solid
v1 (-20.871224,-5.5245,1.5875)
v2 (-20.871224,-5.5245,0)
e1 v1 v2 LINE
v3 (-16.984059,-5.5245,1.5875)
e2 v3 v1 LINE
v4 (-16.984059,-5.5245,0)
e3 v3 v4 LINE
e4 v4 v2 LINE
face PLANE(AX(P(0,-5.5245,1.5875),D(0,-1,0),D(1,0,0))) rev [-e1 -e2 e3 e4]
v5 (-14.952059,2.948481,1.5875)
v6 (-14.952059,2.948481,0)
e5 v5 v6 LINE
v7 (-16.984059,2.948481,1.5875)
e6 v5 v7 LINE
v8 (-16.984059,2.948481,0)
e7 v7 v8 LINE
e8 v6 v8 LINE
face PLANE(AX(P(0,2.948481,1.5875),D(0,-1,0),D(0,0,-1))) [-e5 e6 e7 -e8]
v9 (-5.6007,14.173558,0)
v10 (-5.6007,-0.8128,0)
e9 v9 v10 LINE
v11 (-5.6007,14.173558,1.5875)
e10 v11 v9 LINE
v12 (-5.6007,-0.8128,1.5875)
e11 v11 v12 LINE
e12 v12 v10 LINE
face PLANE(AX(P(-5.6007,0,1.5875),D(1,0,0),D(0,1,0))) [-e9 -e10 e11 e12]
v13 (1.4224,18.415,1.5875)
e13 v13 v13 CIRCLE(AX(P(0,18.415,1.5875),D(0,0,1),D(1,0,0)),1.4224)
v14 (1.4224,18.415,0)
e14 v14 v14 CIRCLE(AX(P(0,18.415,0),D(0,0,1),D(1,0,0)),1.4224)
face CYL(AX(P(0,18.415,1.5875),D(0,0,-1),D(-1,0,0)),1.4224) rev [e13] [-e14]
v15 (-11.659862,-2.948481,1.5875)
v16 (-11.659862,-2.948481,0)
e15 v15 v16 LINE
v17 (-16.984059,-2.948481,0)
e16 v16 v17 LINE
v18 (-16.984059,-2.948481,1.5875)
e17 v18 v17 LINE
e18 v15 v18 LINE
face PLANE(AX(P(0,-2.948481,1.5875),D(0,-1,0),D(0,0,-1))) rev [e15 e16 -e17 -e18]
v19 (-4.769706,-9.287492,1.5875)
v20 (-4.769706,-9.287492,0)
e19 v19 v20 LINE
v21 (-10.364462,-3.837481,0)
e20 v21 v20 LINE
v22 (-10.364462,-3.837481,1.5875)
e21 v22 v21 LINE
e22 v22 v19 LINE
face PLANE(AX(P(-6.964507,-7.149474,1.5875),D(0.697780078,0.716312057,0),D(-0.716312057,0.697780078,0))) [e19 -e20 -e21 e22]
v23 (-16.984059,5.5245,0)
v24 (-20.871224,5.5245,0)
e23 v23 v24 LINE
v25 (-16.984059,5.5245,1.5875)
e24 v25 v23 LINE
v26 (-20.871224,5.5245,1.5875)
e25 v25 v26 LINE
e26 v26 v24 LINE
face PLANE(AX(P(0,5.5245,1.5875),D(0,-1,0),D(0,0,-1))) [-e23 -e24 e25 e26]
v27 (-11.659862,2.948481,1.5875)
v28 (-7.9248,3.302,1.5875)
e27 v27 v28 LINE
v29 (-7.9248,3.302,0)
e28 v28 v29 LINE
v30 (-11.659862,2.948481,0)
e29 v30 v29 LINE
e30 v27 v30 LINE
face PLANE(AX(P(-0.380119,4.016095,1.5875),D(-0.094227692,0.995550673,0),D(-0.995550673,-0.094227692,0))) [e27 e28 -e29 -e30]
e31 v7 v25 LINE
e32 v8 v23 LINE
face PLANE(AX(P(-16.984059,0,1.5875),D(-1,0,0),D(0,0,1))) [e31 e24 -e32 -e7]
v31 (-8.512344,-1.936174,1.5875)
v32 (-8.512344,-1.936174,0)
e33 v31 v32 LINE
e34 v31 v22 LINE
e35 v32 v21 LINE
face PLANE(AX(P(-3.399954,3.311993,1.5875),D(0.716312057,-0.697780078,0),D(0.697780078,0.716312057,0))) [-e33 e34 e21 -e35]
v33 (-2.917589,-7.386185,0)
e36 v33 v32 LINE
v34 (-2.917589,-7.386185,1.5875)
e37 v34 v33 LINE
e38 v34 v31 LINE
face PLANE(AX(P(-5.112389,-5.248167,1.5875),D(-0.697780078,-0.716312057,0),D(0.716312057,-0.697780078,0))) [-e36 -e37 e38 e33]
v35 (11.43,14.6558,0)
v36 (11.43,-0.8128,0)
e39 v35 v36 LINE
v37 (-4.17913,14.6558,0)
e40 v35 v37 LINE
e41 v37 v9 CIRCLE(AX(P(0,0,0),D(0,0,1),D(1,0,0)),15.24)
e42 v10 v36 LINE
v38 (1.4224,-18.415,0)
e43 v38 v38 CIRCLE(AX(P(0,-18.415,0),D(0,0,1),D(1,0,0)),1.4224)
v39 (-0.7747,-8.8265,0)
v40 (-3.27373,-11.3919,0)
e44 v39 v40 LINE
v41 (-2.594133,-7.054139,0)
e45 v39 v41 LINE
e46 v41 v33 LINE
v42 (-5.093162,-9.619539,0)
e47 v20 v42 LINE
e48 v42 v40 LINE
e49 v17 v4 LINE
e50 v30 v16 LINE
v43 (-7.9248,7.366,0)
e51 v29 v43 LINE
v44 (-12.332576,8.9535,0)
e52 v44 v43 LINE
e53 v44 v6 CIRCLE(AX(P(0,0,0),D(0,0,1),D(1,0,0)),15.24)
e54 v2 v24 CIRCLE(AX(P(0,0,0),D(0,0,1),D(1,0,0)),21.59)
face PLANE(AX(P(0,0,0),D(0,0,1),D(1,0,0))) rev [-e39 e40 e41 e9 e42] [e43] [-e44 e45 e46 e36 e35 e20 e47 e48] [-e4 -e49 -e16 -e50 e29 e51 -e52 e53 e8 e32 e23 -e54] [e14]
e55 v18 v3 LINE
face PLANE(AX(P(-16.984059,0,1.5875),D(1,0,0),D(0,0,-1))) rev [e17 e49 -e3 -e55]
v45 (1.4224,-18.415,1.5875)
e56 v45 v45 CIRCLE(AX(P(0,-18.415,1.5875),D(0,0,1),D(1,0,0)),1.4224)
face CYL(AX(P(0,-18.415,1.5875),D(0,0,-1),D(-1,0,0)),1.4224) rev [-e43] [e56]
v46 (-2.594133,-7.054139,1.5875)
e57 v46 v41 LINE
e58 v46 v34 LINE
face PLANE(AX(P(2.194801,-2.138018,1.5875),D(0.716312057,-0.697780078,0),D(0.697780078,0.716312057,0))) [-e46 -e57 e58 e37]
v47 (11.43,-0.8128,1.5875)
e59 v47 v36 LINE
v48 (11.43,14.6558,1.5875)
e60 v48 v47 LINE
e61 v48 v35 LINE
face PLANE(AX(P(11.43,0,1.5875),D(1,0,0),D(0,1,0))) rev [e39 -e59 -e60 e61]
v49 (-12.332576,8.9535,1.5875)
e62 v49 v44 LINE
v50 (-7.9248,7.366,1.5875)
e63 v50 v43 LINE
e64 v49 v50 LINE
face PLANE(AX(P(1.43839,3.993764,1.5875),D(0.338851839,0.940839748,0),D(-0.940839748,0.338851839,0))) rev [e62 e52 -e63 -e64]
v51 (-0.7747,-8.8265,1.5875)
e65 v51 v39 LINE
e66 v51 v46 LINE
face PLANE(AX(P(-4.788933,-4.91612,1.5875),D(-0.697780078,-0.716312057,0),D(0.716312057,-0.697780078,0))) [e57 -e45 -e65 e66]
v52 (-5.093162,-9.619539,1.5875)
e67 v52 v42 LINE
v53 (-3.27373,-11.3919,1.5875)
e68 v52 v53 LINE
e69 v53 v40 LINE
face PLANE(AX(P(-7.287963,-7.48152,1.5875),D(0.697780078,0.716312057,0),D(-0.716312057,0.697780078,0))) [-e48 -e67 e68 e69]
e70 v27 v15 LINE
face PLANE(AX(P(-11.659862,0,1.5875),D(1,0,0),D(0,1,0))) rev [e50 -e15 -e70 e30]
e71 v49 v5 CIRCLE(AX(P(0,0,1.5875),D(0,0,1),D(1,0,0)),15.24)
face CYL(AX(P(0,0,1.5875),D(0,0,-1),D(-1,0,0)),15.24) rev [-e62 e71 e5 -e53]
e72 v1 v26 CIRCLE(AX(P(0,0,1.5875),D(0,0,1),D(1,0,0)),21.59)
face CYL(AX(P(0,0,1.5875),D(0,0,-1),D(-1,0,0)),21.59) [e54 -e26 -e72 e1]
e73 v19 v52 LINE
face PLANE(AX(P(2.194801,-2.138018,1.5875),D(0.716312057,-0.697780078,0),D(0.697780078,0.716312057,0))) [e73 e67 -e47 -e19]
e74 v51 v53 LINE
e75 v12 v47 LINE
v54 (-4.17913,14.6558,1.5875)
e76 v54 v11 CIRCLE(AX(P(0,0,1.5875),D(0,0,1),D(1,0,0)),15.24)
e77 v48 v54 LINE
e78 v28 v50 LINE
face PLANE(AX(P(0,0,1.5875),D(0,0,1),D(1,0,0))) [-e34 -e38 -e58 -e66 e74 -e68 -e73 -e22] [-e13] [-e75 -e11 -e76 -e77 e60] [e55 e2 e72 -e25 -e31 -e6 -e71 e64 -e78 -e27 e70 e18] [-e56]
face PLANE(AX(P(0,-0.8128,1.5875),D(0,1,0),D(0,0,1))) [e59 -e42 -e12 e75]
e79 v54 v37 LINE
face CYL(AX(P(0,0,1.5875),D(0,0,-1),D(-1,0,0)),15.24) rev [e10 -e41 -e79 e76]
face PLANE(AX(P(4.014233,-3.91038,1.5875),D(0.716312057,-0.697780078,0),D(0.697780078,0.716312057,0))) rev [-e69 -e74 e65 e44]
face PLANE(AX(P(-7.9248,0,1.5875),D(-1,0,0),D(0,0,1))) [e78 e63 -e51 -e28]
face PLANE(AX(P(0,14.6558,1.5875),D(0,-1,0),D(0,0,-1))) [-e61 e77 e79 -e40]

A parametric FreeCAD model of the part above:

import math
import FreeCAD as App
import Part
import Sketcher

V = App.Vector
Q = App.Units.Quantity

doc = App.newDocument("Part")
body = doc.addObject("PartDesign::Body", "Body")

sketch1 = body.newObject("Sketcher::SketchObject", "Sketch")
sketch1.AttachmentSupport = (doc.getObject("XY_Plane"), [""])
sketch1.MapMode = "FlatFace"
sketch1.addGeometry(Part.LineSegment(V(-7.92, 3.3, 0), V(-11.66, 2.95, 0)), False)
sketch1.addGeometry(Part.LineSegment(V(-11.66, 2.95, 0), V(-11.66, -2.95, 0)), False)
sketch1.addGeometry(Part.LineSegment(V(-11.66, -2.95, 0), V(-16.98, -2.95, 0)), False)
sketch1.addGeometry(Part.LineSegment(V(-16.98, -2.95, 0), V(-16.98, -5.52, 0)), False)
sketch1.addGeometry(Part.LineSegment(V(-16.98, -5.52, 0), V(-20.87, -5.52, 0)), False)
sketch1.addGeometry(Part.ArcOfCircle(Part.Circle(V(0, 0, 0), V(0, 0, 1), 21.59), math.radians(-165), math.radians(165)), False)
sketch1.addGeometry(Part.LineSegment(V(-20.87, 5.52, 0), V(-16.98, 5.52, 0)), False)
sketch1.addGeometry(Part.LineSegment(V(-16.98, 5.52, 0), V(-16.98, 2.95, 0)), False)
sketch1.addGeometry(Part.LineSegment(V(-16.98, 2.95, 0), V(-14.95, 2.95, 0)), False)
sketch1.addGeometry(Part.ArcOfCircle(Part.Circle(V(0, 0, 0), V(0, 0, 1), 15.24), math.radians(144), math.radians(169)), False)
sketch1.addGeometry(Part.LineSegment(V(-12.33, 8.95, 0), V(-7.92, 7.37, 0)), False)
sketch1.addGeometry(Part.LineSegment(V(-7.92, 7.37, 0), V(-7.92, 3.3, 0)), False)
sketch1.addGeometry(Part.Circle(V(0, -18.41, 0), V(0, 0, 1), 1.42), False)
sketch1.addGeometry(Part.LineSegment(V(-4.77, -9.29, 0), V(-10.36, -3.84, 0)), False)
sketch1.addGeometry(Part.LineSegment(V(-10.36, -3.84, 0), V(-8.51, -1.94, 0)), False)
sketch1.addGeometry(Part.LineSegment(V(-8.51, -1.94, 0), V(-2.92, -7.39, 0)), False)
sketch1.addGeometry(Part.LineSegment(V(-2.92, -7.39, 0), V(-2.59, -7.05, 0)), False)
sketch1.addGeometry(Part.LineSegment(V(-2.59, -7.05, 0), V(-0.77, -8.83, 0)), False)
sketch1.addGeometry(Part.LineSegment(V(-0.77, -8.83, 0), V(-3.27, -11.39, 0)), False)
sketch1.addGeometry(Part.LineSegment(V(-3.27, -11.39, 0), V(-5.09, -9.62, 0)), False)
sketch1.addGeometry(Part.LineSegment(V(-5.09, -9.62, 0), V(-4.77, -9.29, 0)), False)
sketch1.addGeometry(Part.Circle(V(0, 18.41, 0), V(0, 0, 1), 1.42), False)
sketch1.addGeometry(Part.LineSegment(V(-4.18, 14.66, 0), V(11.43, 14.66, 0)), False)
sketch1.addGeometry(Part.LineSegment(V(11.43, 14.66, 0), V(11.43, -0.81, 0)), False)
sketch1.addGeometry(Part.LineSegment(V(11.43, -0.81, 0), V(-5.6, -0.81, 0)), False)
sketch1.addGeometry(Part.LineSegment(V(-5.6, -0.81, 0), V(-5.6, 14.17, 0)), False)
sketch1.addGeometry(Part.ArcOfCircle(Part.Circle(V(0, 0, 0), V(0, 0, 1), 15.24), math.radians(105.92), math.radians(111.56)), False)
sketch1.addConstraint(Sketcher.Constraint("Coincident", 0, 2, 1, 1))
sketch1.addConstraint(Sketcher.Constraint("Coincident", 1, 2, 2, 1))
sketch1.addConstraint(Sketcher.Constraint("Coincident", 2, 2, 3, 1))
sketch1.addConstraint(Sketcher.Constraint("Coincident", 3, 2, 4, 1))
sketch1.addConstraint(Sketcher.Constraint("Coincident", 4, 2, 5, 1))
sketch1.addConstraint(Sketcher.Constraint("Coincident", 5, 2, 6, 1))
sketch1.addConstraint(Sketcher.Constraint("Coincident", 6, 2, 7, 1))
sketch1.addConstraint(Sketcher.Constraint("Coincident", 7, 2, 8, 1))
sketch1.addConstraint(Sketcher.Constraint("Coincident", 8, 2, 9, 2))
sketch1.addConstraint(Sketcher.Constraint("Coincident", 9, 1, 10, 1))
sketch1.addConstraint(Sketcher.Constraint("Coincident", 10, 2, 11, 1))
sketch1.addConstraint(Sketcher.Constraint("Coincident", 11, 2, 0, 1))
sketch1.addConstraint(Sketcher.Constraint("Coincident", 13, 2, 14, 1))
sketch1.addConstraint(Sketcher.Constraint("Coincident", 14, 2, 15, 1))
sketch1.addConstraint(Sketcher.Constraint("Coincident", 15, 2, 16, 1))
sketch1.addConstraint(Sketcher.Constraint("Coincident", 16, 2, 17, 1))
sketch1.addConstraint(Sketcher.Constraint("Coincident", 17, 2, 18, 1))
sketch1.addConstraint(Sketcher.Constraint("Coincident", 18, 2, 19, 1))
sketch1.addConstraint(Sketcher.Constraint("Coincident", 19, 2, 20, 1))
sketch1.addConstraint(Sketcher.Constraint("Coincident", 20, 2, 13, 1))
sketch1.addConstraint(Sketcher.Constraint("Coincident", 22, 2, 23, 1))
sketch1.addConstraint(Sketcher.Constraint("Coincident", 23, 2, 24, 1))
sketch1.addConstraint(Sketcher.Constraint("Coincident", 24, 2, 25, 1))
sketch1.addConstraint(Sketcher.Constraint("Coincident", 25, 2, 26, 2))
sketch1.addConstraint(Sketcher.Constraint("Coincident", 26, 1, 22, 1))
sketch1.addConstraint(Sketcher.Constraint("Vertical", 1))
sketch1.addConstraint(Sketcher.Constraint("Horizontal", 2))
sketch1.addConstraint(Sketcher.Constraint("Vertical", 3))
sketch1.addConstraint(Sketcher.Constraint("Horizontal", 4))
sketch1.addConstraint(Sketcher.Constraint("Horizontal", 6))
sketch1.addConstraint(Sketcher.Constraint("Vertical", 7))
sketch1.addConstraint(Sketcher.Constraint("Horizontal", 8))
sketch1.addConstraint(Sketcher.Constraint("Vertical", 11))
sketch1.addConstraint(Sketcher.Constraint("Horizontal", 22))
sketch1.addConstraint(Sketcher.Constraint("Vertical", 23))
sketch1.addConstraint(Sketcher.Constraint("Horizontal", 24))
sketch1.addConstraint(Sketcher.Constraint("Vertical", 25))
sketch1.addConstraint(Sketcher.Constraint("Coincident", 5, 3, -1, 1))
sketch1.addConstraint(Sketcher.Constraint("Coincident", 9, 3, -1, 1))
sketch1.addConstraint(Sketcher.Constraint("Coincident", 26, 3, -1, 1))
sketch1.addConstraint(Sketcher.Constraint("Equal", 12, 21))
sketch1.addConstraint(Sketcher.Constraint("Equal", 9, 26))
sketch1.addConstraint(Sketcher.Constraint("Symmetric", 12, 3, 21, 3, -1, 1))
sketch1.addConstraint(Sketcher.Constraint("Symmetric", 3, 2, 6, 2, -1))
sketch1.addConstraint(Sketcher.Constraint("PointOnObject", 12, 3, -2))
sketch1.addConstraint(Sketcher.Constraint("Perpendicular", 13, 14))
sketch1.addConstraint(Sketcher.Constraint("Perpendicular", 14, 15))
sketch1.addConstraint(Sketcher.Constraint("Perpendicular", 15, 16))
sketch1.addConstraint(Sketcher.Constraint("Perpendicular", 16, 17))
sketch1.addConstraint(Sketcher.Constraint("Perpendicular", 17, 18))
sketch1.addConstraint(Sketcher.Constraint("Perpendicular", 18, 19))
sketch1.addConstraint(Sketcher.Constraint("Perpendicular", 19, 20))
sketch1.addConstraint(Sketcher.Constraint("Horizontal", 0, 2, 7, 2))
sketch1.addConstraint(Sketcher.Constraint("Equal", 3, 7))
sketch1.addConstraint(Sketcher.Constraint("Equal", 13, 15))
sketch1.addConstraint(Sketcher.Constraint("Equal", 16, 20))
sketch1.addConstraint(Sketcher.Constraint("Radius", 9, Q("0.6 in")))
sketch1.addConstraint(Sketcher.Constraint("Radius", 5, Q("0.85 in")))
sketch1.addConstraint(Sketcher.Constraint("Diameter", 12, Q("0.112 in")))
sketch1.addConstraint(Sketcher.Constraint("Distance", 17, Q("0.1 in")))
sketch1.addConstraint(Sketcher.Constraint("DistanceX", 8, 1, 8, 2, Q("0.08 in")))
sketch1.addConstraint(Sketcher.Constraint("DistanceY", 11, 2, 11, 1, Q("0.16 in")))
sketch1.addConstraint(Sketcher.Constraint("DistanceY", 23, 2, 23, 1, Q("0.609 in")))
sketch1.addConstraint(Sketcher.Constraint("DistanceY", -1, 1, 10, 2, Q("0.29 in")))
sketch1.addConstraint(Sketcher.Constraint("DistanceX", -1, 1, 22, 2, Q("0.45 in")))
sketch1.addConstraint(Sketcher.Constraint("DistanceY", 12, 3, 21, 3, Q("1.45 in")))
sketch1.addConstraint(Sketcher.Constraint("Distance", 18, Q("0.141 in")))
sketch1.addConstraint(Sketcher.Constraint("DistanceX", 24, 2, 24, 1, Q("0.6705 in")))
sketch1.addConstraint(Sketcher.Constraint("DistanceX", 10, 2, -1, 1, Q("0.312 in")))
sketch1.addConstraint(Sketcher.Constraint("DistanceY", -1, 1, 22, 2, Q("0.577 in")))
sketch1.addConstraint(Sketcher.Constraint("DistanceY", 4, 2, 5, 2, Q("0.435 in")))
sketch1.addConstraint(Sketcher.Constraint("DistanceY", 6, 2, 9, 1, Q("0.135 in")))
sketch1.addConstraint(Sketcher.Constraint("DistanceX", 1, 2, 13, 2, Q("0.051 in")))
sketch1.addConstraint(Sketcher.Constraint("DistanceY", 13, 2, 1, 2, Q("0.035 in")))
sketch1.addConstraint(Sketcher.Constraint("DistanceY", 18, 2, 17, 2, Q("0.101 in")))
sketch1.addConstraint(Sketcher.Constraint("Distance", 13, Q("0.3075 in")))
sketch1.addConstraint(Sketcher.Constraint("Distance", 14, Q("0.1045 in")))
sketch1.addConstraint(Sketcher.Constraint("DistanceX", 17, 2, -1, 1, Q("0.0305 in")))
sketch1.addConstraint(Sketcher.Constraint("DistanceY", 17, 2, -1, 1, Q("0.3475 in")))
pad1 = body.newObject("PartDesign::Pad", "Pad")
pad1.Profile = sketch1
pad1.Length = Q("0.0625 in")

doc.recompute()
